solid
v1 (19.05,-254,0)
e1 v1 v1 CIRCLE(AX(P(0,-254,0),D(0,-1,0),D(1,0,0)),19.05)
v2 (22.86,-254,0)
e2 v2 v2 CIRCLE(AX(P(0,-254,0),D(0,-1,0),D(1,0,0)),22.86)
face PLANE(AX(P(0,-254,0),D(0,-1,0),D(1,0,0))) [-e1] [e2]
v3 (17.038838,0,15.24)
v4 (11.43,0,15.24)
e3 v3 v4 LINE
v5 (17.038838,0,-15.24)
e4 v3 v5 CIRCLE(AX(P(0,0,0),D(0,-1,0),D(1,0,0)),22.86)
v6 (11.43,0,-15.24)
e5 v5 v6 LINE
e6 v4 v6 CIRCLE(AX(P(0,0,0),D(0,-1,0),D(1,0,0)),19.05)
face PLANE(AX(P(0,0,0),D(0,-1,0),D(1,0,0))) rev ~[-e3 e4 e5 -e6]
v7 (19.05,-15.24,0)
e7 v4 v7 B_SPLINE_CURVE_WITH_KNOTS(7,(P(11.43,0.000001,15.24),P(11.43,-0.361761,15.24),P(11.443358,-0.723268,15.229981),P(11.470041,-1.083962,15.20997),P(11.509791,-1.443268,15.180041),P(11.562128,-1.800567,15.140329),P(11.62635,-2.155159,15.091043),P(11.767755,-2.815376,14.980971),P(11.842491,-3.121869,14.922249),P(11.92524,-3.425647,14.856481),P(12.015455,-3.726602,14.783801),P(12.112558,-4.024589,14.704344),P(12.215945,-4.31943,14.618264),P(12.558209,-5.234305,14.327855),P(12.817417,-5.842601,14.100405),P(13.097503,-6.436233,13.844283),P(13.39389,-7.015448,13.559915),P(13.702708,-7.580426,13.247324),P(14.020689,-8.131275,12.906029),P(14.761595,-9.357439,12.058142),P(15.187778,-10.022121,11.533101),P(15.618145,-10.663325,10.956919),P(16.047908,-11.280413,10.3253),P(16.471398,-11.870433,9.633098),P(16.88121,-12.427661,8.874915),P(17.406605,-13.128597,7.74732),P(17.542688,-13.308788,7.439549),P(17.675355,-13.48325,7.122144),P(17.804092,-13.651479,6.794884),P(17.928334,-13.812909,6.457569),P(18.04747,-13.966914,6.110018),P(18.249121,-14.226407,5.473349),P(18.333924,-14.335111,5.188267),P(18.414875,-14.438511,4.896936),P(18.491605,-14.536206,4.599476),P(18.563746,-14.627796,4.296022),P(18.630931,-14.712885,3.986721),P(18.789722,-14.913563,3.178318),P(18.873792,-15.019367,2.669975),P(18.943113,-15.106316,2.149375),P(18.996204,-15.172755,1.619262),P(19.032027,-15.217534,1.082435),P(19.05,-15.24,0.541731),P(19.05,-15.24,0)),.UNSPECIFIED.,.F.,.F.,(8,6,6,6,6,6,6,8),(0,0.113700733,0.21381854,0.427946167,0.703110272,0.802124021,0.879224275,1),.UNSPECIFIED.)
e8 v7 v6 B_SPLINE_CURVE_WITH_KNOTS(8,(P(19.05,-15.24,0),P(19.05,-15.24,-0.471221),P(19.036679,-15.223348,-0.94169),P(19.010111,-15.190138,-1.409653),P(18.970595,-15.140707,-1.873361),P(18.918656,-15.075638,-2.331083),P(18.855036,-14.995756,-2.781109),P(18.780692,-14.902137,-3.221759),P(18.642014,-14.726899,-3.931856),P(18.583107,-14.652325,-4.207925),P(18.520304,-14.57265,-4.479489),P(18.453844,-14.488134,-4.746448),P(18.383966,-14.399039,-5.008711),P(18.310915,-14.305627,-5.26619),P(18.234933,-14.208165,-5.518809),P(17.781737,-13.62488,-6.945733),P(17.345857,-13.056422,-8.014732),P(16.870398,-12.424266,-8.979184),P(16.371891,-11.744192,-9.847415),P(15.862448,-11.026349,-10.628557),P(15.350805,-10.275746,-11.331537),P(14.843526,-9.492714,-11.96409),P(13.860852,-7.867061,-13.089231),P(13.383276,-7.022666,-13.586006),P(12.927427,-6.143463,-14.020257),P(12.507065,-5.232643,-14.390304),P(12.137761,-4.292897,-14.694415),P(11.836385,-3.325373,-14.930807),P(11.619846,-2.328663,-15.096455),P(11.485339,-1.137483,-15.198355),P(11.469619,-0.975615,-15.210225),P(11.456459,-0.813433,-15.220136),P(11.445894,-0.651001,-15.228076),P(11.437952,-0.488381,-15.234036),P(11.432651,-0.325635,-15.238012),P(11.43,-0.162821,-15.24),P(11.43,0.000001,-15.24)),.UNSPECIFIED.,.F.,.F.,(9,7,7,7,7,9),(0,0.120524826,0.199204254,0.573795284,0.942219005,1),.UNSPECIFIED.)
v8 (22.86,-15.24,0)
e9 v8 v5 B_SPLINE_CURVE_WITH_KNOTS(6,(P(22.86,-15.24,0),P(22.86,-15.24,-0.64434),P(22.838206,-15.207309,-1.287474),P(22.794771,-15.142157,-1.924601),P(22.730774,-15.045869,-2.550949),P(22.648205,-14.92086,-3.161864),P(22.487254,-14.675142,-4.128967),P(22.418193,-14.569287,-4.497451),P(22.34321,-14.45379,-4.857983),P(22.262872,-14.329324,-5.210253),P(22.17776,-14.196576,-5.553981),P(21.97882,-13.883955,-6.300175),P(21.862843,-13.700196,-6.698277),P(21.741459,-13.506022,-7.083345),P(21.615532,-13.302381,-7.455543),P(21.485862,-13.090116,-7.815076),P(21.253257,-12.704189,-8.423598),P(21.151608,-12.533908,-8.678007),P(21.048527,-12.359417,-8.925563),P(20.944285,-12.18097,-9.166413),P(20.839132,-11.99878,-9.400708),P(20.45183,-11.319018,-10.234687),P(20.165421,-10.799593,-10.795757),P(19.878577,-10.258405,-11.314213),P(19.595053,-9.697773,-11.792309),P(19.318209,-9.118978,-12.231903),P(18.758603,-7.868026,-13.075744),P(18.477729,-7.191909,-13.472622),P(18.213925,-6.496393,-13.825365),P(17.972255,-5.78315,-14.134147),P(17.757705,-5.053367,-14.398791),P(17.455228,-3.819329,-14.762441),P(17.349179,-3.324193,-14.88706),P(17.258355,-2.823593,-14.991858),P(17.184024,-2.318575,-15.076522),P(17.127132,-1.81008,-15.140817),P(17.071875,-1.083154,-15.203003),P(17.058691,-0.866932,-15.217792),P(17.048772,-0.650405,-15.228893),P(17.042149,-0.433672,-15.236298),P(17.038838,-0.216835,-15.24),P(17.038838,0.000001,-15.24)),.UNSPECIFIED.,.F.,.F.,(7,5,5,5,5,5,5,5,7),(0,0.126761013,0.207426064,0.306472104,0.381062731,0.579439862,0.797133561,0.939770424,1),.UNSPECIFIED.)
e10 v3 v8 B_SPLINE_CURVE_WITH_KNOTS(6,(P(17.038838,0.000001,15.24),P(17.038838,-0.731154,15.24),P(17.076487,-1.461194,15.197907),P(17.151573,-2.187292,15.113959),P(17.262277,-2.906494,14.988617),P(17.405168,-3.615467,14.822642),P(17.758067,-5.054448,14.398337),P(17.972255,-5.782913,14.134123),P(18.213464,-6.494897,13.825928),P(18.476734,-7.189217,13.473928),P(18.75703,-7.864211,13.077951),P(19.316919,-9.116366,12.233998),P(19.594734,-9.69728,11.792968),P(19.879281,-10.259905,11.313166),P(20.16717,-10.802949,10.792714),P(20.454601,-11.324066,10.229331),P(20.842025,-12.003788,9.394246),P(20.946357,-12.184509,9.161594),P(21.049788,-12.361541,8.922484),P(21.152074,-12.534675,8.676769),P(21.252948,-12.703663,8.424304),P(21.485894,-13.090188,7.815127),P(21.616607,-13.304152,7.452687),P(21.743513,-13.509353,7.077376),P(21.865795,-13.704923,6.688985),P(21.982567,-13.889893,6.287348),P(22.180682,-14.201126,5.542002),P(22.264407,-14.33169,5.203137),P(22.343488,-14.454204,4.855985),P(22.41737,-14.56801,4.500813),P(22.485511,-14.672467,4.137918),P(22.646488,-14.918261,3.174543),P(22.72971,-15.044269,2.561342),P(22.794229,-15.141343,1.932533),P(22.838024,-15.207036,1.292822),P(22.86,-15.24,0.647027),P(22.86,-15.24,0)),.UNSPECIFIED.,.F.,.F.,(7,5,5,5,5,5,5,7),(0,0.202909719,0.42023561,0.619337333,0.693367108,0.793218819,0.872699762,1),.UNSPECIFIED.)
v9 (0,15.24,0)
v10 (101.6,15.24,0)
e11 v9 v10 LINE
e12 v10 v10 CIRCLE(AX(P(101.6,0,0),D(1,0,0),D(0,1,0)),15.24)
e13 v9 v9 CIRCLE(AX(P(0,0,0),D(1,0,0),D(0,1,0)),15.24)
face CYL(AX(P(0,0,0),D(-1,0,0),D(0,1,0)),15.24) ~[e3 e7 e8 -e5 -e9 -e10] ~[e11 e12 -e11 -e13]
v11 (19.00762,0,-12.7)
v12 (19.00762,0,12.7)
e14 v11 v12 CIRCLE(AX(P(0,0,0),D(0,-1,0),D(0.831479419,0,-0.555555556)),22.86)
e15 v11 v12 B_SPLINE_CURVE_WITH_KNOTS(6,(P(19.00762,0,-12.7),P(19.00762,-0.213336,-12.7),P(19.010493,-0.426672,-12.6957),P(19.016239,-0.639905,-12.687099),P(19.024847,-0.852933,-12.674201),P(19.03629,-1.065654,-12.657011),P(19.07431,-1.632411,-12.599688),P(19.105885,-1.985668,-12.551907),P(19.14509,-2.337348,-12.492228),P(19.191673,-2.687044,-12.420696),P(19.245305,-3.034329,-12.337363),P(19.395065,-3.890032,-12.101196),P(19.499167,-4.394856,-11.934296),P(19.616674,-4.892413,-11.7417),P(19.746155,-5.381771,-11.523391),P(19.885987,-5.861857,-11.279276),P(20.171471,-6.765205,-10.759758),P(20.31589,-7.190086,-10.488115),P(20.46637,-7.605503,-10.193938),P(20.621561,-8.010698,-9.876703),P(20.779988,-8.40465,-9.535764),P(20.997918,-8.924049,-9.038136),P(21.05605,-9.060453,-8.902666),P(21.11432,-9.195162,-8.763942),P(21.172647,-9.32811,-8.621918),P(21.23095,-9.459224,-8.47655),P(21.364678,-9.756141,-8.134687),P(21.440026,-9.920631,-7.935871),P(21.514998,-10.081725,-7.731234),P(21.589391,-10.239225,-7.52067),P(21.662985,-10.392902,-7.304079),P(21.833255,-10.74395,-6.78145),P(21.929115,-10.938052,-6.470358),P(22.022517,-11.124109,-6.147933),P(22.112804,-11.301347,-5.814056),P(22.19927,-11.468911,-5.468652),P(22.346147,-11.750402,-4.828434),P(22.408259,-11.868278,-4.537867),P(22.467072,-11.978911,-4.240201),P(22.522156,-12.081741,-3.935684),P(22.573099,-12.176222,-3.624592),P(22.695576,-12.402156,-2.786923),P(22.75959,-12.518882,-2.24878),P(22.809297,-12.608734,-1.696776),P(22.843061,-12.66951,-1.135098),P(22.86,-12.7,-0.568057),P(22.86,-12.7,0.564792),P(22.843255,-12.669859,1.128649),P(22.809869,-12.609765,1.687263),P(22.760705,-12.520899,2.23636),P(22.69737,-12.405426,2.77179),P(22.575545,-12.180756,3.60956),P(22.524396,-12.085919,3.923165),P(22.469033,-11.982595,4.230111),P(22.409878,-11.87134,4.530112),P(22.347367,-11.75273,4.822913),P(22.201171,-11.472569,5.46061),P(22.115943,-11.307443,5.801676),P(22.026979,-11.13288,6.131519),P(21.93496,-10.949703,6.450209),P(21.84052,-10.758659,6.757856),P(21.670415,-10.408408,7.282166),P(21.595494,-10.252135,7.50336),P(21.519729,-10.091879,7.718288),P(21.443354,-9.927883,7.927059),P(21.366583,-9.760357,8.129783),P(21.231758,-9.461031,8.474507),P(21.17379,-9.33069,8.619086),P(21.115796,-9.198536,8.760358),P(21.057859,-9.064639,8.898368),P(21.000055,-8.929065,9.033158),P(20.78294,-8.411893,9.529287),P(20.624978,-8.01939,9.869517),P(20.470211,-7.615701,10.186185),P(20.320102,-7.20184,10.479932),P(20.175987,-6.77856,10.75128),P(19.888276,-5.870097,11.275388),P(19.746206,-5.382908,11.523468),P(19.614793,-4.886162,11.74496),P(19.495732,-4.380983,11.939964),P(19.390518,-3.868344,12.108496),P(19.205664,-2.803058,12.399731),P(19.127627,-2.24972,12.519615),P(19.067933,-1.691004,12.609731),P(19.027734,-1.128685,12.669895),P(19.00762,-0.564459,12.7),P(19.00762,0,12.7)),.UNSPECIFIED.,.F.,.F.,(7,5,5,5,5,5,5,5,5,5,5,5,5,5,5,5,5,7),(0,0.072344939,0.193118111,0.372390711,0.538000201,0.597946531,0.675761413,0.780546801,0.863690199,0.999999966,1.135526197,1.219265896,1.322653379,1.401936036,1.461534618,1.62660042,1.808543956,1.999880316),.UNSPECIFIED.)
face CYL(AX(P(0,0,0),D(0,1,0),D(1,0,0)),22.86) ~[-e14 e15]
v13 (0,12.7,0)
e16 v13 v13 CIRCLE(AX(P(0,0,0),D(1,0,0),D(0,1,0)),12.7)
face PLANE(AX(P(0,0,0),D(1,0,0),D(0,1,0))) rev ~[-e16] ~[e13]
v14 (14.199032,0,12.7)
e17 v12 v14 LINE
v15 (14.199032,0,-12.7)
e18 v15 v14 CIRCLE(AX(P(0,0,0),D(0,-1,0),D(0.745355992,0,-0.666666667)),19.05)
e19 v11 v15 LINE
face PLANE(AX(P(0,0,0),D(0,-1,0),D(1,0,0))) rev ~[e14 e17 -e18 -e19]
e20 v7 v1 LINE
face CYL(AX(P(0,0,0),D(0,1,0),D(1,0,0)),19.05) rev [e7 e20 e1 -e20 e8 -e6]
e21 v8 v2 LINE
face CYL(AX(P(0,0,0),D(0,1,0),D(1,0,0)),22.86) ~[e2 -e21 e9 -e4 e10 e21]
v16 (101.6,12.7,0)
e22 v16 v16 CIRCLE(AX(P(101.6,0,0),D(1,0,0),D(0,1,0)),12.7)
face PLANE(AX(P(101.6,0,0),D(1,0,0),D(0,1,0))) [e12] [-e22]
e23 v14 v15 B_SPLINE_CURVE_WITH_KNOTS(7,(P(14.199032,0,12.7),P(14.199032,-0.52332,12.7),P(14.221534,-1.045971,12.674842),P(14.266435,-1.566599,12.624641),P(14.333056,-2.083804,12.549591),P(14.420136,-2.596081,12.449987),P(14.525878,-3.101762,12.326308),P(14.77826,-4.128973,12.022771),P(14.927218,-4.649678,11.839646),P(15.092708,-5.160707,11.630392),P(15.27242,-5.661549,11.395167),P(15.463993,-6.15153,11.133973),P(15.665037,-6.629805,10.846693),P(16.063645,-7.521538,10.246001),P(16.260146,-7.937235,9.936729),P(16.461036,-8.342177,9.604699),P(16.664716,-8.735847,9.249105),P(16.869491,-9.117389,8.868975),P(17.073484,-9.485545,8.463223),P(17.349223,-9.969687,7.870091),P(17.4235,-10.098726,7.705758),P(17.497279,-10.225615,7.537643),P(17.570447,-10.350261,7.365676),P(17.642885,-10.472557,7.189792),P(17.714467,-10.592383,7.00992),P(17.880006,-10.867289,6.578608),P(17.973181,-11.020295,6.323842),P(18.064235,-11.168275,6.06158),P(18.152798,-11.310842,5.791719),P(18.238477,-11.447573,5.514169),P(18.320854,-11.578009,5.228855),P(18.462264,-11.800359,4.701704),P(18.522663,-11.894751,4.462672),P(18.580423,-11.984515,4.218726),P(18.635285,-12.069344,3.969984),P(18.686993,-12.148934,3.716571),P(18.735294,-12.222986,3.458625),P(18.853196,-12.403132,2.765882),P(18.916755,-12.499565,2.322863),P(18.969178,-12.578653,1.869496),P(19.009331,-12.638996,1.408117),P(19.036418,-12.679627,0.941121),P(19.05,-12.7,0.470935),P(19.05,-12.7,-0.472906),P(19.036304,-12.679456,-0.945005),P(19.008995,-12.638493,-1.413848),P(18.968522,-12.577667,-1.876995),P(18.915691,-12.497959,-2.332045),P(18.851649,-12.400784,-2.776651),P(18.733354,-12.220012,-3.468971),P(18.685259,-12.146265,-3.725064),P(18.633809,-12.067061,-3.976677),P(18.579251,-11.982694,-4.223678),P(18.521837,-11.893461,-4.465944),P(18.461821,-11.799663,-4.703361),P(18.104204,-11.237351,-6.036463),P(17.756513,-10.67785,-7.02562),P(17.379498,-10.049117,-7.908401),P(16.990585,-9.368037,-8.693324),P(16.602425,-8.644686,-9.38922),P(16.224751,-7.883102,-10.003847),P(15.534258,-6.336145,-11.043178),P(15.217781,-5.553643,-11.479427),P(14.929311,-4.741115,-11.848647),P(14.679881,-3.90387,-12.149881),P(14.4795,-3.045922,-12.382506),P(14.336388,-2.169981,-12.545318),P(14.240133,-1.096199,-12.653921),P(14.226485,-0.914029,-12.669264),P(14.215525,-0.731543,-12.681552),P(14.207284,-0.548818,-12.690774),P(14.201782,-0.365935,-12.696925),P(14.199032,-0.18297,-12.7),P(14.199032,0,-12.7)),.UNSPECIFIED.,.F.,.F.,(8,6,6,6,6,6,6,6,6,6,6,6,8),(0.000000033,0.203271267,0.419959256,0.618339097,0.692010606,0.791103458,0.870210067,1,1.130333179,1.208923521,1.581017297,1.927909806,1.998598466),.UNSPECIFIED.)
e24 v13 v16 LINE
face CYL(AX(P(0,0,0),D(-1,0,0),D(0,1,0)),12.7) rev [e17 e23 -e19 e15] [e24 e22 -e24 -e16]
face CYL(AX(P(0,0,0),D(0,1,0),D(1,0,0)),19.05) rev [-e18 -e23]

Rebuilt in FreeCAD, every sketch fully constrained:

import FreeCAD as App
import Part
import Sketcher
from FreeCAD import Vector
Q = App.Units.Quantity

doc = App.newDocument("Part")
body = doc.addObject("PartDesign::Body", "Body")

# Sketch on XZ plane
sketch1 = body.newObject("Sketcher::SketchObject", "Sketch")
sketch1.AttachmentSupport = (doc.getObject("XZ_Plane"), [""])
sketch1.MapMode = "FlatFace"
sketch1.addGeometry(Part.Circle(Vector(0, 0, 0), Vector(0, 0, 1), 23), False)
sketch1.addGeometry(Part.Circle(Vector(0, 0, 0), Vector(0, 0, 1), 19), False)
sketch1.addConstraint(Sketcher.Constraint("Coincident", 0, 3, -1, 1))
sketch1.addConstraint(Sketcher.Constraint("Coincident", 1, 3, -1, 1))
sketch1.addConstraint(Sketcher.Constraint("Diameter", 0, Q("1.8 in")))
sketch1.addConstraint(Sketcher.Constraint("Diameter", 1, Q("1.5 in")))
pad1 = body.newObject("PartDesign::Pad", "Pad")
pad1.Profile = sketch1
pad1.Length = Q("10 in")

# Sketch on YZ plane
sketch2 = body.newObject("Sketcher::SketchObject", "Sketch001")
sketch2.AttachmentSupport = (doc.getObject("YZ_Plane"), [""])
sketch2.MapMode = "FlatFace"
sketch2.addGeometry(Part.Circle(Vector(0, 0, 0), Vector(0, 0, 1), 15), False)
sketch2.addGeometry(Part.Circle(Vector(0, 0, 0), Vector(0, 0, 1), 13), False)
sketch2.addConstraint(Sketcher.Constraint("Coincident", 0, 3, -1, 1))
sketch2.addConstraint(Sketcher.Constraint("Coincident", 1, 3, -1, 1))
sketch2.addConstraint(Sketcher.Constraint("Diameter", 1, Q("1 in")))
sketch2.addConstraint(Sketcher.Constraint("Diameter", 0, Q("1.2 in")))
pad2 = body.newObject("PartDesign::Pad", "Pad001")
pad2.Profile = sketch2
pad2.Length = Q("4 in")

doc.recompute()
